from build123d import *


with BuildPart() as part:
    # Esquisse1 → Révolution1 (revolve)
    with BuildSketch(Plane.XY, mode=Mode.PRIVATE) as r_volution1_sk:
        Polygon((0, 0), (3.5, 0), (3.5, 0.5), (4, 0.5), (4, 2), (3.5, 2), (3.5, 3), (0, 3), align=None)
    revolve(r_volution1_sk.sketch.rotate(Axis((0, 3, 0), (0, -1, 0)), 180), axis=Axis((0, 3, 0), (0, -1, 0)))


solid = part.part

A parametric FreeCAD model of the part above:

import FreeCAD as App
import Part
import Sketcher

V = App.Vector


def add_polygon(sketch, points):
    """Adds a closed chain of lines whose ends are joined by coincident constraints."""
    first, n = sketch.GeometryCount, len(points)
    for a, b in zip(points, points[1:] + points[:1]):
        sketch.addGeometry(Part.LineSegment(App.Vector(*a, 0), App.Vector(*b, 0)), False)
    for i in range(n):
        sketch.addConstraint(Sketcher.Constraint("Coincident", first + i, 2, first + (i + 1) % n, 1))

doc = App.newDocument("Part")
body = doc.addObject("PartDesign::Body", "Body")

sketch1 = body.newObject("Sketcher::SketchObject", "Sketch")
sketch1.AttachmentSupport = (doc.getObject("XY_Plane"), [""])
sketch1.MapMode = "FlatFace"
add_polygon(sketch1, [(0, 0), (3.5, 0), (3.5, 0.5), (4, 0.5), (4, 2), (3.5, 2), (3.5, 3), (0, 3)])
sketch1.addConstraint([
    Sketcher.Constraint("Horizontal", 0),
    Sketcher.Constraint("Vertical", 1),
    Sketcher.Constraint("Horizontal", 2),
    Sketcher.Constraint("Vertical", 3),
    Sketcher.Constraint("Horizontal", 4),
    Sketcher.Constraint("Vertical", 5),
    Sketcher.Constraint("Horizontal", 6),
    Sketcher.Constraint("Vertical", 7),
    Sketcher.Constraint("Coincident", 7, 2, -1, 1),
    Sketcher.Constraint("Vertical", 1, 2, 4, 2),
    Sketcher.Constraint("Equal", 4, 1),
    Sketcher.Constraint("DistanceY", 5, 1, 5, 2, 1.0),
    Sketcher.Constraint("DistanceY", 7, 2, 7, 1, 3.0),
    Sketcher.Constraint("DistanceX", 0, 1, 0, 2, 3.5),
    Sketcher.Constraint("DistanceX", 2, 1, 2, 2, 0.5),
])
revolution = body.newObject("PartDesign::Revolution", "Revolution")
revolution.Profile = sketch1
revolution.ReferenceAxis = (sketch1, ["V_Axis"])
revolution.Angle = 360

doc.recompute()
